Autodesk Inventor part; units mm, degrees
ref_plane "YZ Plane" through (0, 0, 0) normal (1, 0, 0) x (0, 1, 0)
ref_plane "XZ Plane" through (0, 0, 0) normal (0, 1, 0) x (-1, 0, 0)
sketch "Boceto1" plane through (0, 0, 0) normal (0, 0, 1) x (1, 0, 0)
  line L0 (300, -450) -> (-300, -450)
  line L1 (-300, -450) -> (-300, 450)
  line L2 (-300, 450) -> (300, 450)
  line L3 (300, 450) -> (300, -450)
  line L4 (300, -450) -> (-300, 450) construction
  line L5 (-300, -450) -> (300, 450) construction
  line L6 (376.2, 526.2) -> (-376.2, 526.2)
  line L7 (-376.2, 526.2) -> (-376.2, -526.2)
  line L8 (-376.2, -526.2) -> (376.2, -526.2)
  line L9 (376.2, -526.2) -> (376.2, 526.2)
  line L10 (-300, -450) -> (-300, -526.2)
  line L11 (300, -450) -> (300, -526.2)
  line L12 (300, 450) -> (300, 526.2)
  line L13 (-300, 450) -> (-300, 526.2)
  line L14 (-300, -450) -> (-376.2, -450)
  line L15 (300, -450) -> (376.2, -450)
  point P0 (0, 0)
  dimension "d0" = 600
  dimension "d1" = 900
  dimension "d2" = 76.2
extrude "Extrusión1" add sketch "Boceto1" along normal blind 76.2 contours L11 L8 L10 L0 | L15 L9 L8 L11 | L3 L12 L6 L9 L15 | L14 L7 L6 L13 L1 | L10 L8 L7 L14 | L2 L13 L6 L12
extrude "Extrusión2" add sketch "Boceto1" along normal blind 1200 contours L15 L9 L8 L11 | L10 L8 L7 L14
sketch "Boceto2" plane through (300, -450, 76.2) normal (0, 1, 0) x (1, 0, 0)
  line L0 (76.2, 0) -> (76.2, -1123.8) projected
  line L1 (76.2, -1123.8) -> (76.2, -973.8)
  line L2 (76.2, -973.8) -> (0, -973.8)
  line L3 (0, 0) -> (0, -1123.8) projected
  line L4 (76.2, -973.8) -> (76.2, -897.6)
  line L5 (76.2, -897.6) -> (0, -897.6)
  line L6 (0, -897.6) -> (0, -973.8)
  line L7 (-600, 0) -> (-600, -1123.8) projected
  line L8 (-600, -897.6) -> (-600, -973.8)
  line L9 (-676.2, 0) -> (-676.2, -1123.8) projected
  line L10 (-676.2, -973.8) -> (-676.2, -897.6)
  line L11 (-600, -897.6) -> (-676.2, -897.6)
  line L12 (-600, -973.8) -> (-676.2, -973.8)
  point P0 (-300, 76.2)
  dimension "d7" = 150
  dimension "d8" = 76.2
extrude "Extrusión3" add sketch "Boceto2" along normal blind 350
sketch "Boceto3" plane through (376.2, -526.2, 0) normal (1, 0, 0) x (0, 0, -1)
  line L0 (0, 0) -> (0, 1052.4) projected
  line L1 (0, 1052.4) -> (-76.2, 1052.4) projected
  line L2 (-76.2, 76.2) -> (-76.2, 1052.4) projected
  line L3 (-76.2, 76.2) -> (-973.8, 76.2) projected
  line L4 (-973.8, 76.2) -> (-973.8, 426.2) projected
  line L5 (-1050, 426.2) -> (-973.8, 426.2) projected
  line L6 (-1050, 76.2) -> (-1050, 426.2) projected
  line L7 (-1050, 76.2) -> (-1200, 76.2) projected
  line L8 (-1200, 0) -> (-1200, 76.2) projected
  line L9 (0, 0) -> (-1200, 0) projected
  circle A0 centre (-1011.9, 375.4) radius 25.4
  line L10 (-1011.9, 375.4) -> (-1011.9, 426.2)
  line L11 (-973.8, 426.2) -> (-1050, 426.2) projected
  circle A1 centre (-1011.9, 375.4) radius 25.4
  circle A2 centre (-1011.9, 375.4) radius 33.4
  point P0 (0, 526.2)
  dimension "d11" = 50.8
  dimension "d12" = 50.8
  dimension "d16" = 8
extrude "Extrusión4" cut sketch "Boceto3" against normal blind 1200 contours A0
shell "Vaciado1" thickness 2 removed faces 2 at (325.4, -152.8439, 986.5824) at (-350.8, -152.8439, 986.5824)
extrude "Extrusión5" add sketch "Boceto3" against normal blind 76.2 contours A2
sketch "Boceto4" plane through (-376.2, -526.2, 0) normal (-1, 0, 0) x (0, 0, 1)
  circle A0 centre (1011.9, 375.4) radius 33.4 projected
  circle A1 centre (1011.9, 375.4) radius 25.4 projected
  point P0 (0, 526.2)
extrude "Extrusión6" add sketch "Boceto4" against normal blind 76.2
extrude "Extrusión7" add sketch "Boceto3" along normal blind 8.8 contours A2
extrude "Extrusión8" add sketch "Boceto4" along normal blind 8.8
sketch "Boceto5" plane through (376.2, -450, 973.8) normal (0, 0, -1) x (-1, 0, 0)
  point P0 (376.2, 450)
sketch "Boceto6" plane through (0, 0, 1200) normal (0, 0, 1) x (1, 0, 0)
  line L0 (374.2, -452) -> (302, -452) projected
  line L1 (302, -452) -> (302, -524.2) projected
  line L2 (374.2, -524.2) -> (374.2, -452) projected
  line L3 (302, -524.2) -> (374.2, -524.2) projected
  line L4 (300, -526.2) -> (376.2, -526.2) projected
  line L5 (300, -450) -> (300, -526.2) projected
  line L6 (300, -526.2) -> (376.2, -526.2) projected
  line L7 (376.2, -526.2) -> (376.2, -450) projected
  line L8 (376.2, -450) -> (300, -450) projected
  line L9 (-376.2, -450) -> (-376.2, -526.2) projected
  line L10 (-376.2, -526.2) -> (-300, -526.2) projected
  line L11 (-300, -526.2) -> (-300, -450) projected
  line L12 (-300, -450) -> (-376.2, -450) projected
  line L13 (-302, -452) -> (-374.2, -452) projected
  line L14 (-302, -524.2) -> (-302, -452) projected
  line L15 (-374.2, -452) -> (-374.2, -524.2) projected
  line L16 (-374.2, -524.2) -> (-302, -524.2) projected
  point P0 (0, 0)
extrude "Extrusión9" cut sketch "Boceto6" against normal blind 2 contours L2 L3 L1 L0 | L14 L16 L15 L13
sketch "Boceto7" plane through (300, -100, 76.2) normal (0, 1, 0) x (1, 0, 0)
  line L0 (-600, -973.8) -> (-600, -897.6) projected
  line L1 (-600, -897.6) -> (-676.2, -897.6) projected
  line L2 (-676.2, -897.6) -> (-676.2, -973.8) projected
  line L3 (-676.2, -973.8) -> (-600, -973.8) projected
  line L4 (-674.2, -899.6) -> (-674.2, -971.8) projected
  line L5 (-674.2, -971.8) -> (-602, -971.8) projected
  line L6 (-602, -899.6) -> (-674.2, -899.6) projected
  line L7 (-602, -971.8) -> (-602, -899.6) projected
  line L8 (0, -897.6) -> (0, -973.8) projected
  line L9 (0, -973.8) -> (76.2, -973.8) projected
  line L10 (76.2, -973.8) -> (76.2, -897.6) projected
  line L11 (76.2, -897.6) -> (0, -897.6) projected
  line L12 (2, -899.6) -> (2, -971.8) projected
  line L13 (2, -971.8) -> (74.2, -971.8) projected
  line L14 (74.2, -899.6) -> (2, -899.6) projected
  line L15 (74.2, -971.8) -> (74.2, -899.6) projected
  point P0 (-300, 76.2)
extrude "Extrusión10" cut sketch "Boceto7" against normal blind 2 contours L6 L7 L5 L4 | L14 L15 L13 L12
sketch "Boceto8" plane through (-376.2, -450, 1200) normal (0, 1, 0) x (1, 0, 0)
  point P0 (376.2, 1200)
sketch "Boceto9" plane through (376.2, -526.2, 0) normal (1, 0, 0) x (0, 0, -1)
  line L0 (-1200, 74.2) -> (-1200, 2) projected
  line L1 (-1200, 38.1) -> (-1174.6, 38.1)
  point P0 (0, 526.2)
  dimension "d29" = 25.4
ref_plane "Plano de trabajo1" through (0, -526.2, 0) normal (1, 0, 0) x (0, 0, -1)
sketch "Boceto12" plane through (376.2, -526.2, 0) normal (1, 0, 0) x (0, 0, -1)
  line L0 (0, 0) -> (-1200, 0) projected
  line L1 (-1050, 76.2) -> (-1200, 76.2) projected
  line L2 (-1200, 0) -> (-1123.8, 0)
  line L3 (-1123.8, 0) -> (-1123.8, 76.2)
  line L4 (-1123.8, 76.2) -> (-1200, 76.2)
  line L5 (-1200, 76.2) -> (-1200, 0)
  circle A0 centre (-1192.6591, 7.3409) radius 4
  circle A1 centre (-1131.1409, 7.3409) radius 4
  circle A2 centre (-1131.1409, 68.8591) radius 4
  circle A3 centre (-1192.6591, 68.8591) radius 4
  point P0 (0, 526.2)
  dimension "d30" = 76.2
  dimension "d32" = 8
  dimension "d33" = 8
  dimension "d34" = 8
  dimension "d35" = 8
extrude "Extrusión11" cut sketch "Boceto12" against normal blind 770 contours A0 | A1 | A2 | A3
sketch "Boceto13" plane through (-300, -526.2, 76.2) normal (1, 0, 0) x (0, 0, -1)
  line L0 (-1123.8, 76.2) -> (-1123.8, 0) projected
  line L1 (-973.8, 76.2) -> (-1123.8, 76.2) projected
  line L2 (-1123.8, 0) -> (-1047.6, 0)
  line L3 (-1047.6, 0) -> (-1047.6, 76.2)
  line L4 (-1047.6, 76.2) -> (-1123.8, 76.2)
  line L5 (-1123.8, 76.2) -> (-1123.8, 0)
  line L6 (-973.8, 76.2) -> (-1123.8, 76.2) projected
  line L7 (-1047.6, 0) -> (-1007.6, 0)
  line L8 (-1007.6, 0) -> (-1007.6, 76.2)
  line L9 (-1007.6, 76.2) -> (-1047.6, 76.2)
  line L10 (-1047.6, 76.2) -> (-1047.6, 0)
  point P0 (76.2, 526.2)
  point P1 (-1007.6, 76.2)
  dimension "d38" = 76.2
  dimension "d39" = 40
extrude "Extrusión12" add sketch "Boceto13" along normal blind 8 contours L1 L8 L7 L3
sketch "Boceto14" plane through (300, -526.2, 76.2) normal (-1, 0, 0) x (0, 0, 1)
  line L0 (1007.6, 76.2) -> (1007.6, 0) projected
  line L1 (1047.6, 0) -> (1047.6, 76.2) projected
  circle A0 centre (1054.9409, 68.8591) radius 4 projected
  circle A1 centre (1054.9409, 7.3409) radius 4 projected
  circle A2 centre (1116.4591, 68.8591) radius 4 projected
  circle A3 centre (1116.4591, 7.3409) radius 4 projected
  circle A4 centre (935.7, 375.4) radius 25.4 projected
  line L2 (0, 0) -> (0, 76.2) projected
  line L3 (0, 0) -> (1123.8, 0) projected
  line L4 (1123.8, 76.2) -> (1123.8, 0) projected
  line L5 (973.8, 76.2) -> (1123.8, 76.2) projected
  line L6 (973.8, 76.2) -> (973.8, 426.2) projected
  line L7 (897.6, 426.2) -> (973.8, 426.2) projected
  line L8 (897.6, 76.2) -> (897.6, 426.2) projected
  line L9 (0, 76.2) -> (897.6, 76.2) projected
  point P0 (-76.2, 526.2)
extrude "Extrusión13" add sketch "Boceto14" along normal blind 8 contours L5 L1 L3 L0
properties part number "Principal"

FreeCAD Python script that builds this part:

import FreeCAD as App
import Part
import Sketcher
Q = App.Units.Quantity


def faces_at(feature, points):
    """Names of the faces that lie closest to the given points."""
    faces = feature.Shape.Faces
    near = lambda p: min(range(len(faces)), key=lambda i: faces[i].distToShape(Part.Vertex(*p))[0])
    return sorted({f"Face{near(p) + 1}" for p in points})


def add_polygon(sketch, points):
    """Adds a closed chain of lines whose ends are joined by coincident constraints."""
    first, n = sketch.GeometryCount, len(points)
    for a, b in zip(points, points[1:] + points[:1]):
        sketch.addGeometry(Part.LineSegment(App.Vector(*a, 0), App.Vector(*b, 0)), False)
    for i in range(n):
        sketch.addConstraint(Sketcher.Constraint("Coincident", first + i, 2, first + (i + 1) % n, 1))

doc = App.newDocument("Part")
body = doc.addObject("PartDesign::Body", "Body")

# Sketch on XY plane
sketch1 = doc.addObject("Sketcher::SketchObject", "Sketch")
body.addObject(sketch1)
sketch1.AttachmentSupport = (doc.XY_Plane, [""])
sketch1.MapMode = "FlatFace"
add_polygon(sketch1, [(376, -526), (376, 526), (-376, 526), (-376, -526)])  # lines 0-3
add_polygon(sketch1, [(300, -450), (-300, -450), (-300, 450), (300, 450)])  # lines 4-7
sketch1.addConstraint(Sketcher.Constraint("Vertical", 0))
sketch1.addConstraint(Sketcher.Constraint("Horizontal", 1))
sketch1.addConstraint(Sketcher.Constraint("Vertical", 2))
sketch1.addConstraint(Sketcher.Constraint("Horizontal", 3))
sketch1.addConstraint(Sketcher.Constraint("Horizontal", 4))
sketch1.addConstraint(Sketcher.Constraint("Vertical", 5))
sketch1.addConstraint(Sketcher.Constraint("Horizontal", 6))
sketch1.addConstraint(Sketcher.Constraint("Vertical", 7))
sketch1.addConstraint(Sketcher.Constraint("Symmetric", 0, 2, 2, 2, -1, 1))
sketch1.addConstraint(Sketcher.Constraint("Symmetric", 4, 2, 6, 2, -1, 1))
sketch1.addConstraint(Sketcher.Constraint("DistanceX", 4, 2, 4, 1, Q("600 mm")))
sketch1.addConstraint(Sketcher.Constraint("DistanceY", 5, 1, 5, 2, Q("900 mm")))
sketch1.addConstraint(Sketcher.Constraint("DistanceX", 2, 2, 4, 2, Q("76.2 mm")))
sketch1.addConstraint(Sketcher.Constraint("DistanceY", 2, 2, 4, 2, Q("76.2 mm")))
pad1 = doc.addObject("PartDesign::Pad", "Pad")
body.addObject(pad1)
pad1.Profile = sketch1
pad1.Length = 76.2

# Sketch on XY plane
sketch2 = doc.addObject("Sketcher::SketchObject", "Sketch001")
body.addObject(sketch2)
sketch2.AttachmentSupport = (doc.XY_Plane, [""])
sketch2.MapMode = "FlatFace"
add_polygon(sketch2, [(376, -450), (300, -450), (300, -526), (376, -526)])  # lines 0-3
add_polygon(sketch2, [(-300, -526), (-300, -450), (-376, -450), (-376, -526)])  # lines 4-7
sketch2.addConstraint(Sketcher.Constraint("Horizontal", 0))
sketch2.addConstraint(Sketcher.Constraint("Vertical", 1))
sketch2.addConstraint(Sketcher.Constraint("Horizontal", 2))
sketch2.addConstraint(Sketcher.Constraint("Vertical", 3))
sketch2.addConstraint(Sketcher.Constraint("Vertical", 4))
sketch2.addConstraint(Sketcher.Constraint("Horizontal", 5))
sketch2.addConstraint(Sketcher.Constraint("Vertical", 6))
sketch2.addConstraint(Sketcher.Constraint("Horizontal", 7))
sketch2.addConstraint(Sketcher.Constraint("Symmetric", 0, 2, 4, 2, -2))
sketch2.addConstraint(Sketcher.Constraint("Symmetric", 2, 2, 6, 2, -2))
sketch2.addConstraint(Sketcher.Constraint("Equal", 7, 1))
sketch2.addConstraint(Sketcher.Constraint("DistanceX", 0, 2, 0, 1, Q("76.2 mm")))
sketch2.addConstraint(Sketcher.Constraint("DistanceX", 4, 2, 0, 2, Q("600 mm")))
sketch2.addConstraint(Sketcher.Constraint("DistanceY", 0, 2, -1, 1, Q("450 mm")))
pad2 = doc.addObject("PartDesign::Pad", "Pad001")
body.addObject(pad2)
pad2.Profile = sketch2
pad2.Length = 1200

# Sketch on XZ plane
sketch3 = doc.addObject("Sketcher::SketchObject", "Sketch002")
body.addObject(sketch3)
sketch3.AttachmentSupport = (doc.XZ_Plane, [""])
sketch3.MapMode = "FlatFace"
sketch3.AttachmentOffset = App.Placement(App.Vector(0, 0, 450), App.Rotation())
add_polygon(sketch3, [(376, 1050), (376, 974), (300, 974), (300, 1050)])  # lines 0-3
add_polygon(sketch3, [(-300, 1050), (-300, 974), (-376, 974), (-376, 1050)])  # lines 4-7
sketch3.addConstraint(Sketcher.Constraint("Vertical", 0))
sketch3.addConstraint(Sketcher.Constraint("Horizontal", 1))
sketch3.addConstraint(Sketcher.Constraint("Vertical", 2))
sketch3.addConstraint(Sketcher.Constraint("Horizontal", 3))
sketch3.addConstraint(Sketcher.Constraint("Vertical", 4))
sketch3.addConstraint(Sketcher.Constraint("Horizontal", 5))
sketch3.addConstraint(Sketcher.Constraint("Vertical", 6))
sketch3.addConstraint(Sketcher.Constraint("Horizontal", 7))
sketch3.addConstraint(Sketcher.Constraint("Symmetric", 1, 2, 4, 2, -2))
sketch3.addConstraint(Sketcher.Constraint("Symmetric", 3, 2, 6, 2, -2))
sketch3.addConstraint(Sketcher.Constraint("Equal", 7, 0))
sketch3.addConstraint(Sketcher.Constraint("DistanceX", 1, 2, 1, 1, Q("76.2 mm")))
sketch3.addConstraint(Sketcher.Constraint("DistanceX", -1, 1, 1, 2, Q("300 mm")))
sketch3.addConstraint(Sketcher.Constraint("DistanceY", -1, 1, 2, 2, Q("1050 mm")))
pad3 = doc.addObject("PartDesign::Pad", "Pad002")
body.addObject(pad3)
pad3.Profile = sketch3
pad3.Length = 350
pad3.Reversed = True

# Sketch on YZ plane
sketch4 = doc.addObject("Sketcher::SketchObject", "Sketch003")
body.addObject(sketch4)
sketch4.AttachmentSupport = (doc.YZ_Plane, [""])
sketch4.MapMode = "FlatFace"
sketch4.AttachmentOffset = App.Placement(App.Vector(0, 0, 376.2), App.Rotation())
sketch4.addGeometry(Part.Circle(App.Vector(-151, 1012, 0), App.Vector(0, 0, 1), 25), False)
sketch4.addConstraint(Sketcher.Constraint("Diameter", 0, Q("50.8 mm")))
sketch4.addConstraint(Sketcher.Constraint("DistanceX", 0, 3, -1, 1, Q("150.8 mm")))
sketch4.addConstraint(Sketcher.Constraint("DistanceY", -1, 1, 0, 3, Q("1011.9 mm")))
pocket1 = doc.addObject("PartDesign::Pocket", "Pocket")
body.addObject(pocket1)
pocket1.Profile = sketch4
pocket1.Length = 1200
doc.recompute()

thickness = doc.addObject("PartDesign::Thickness", "Thickness")
body.addObject(thickness)
thickness.Base = (pocket1, faces_at(pocket1, [(325.4, -152.844, 986.582), (-350.8, -152.844, 986.582)]))
thickness.Value = 2
thickness.Reversed = True
thickness.Join = "Intersection"

# Sketch on YZ plane
sketch5 = doc.addObject("Sketcher::SketchObject", "Sketch004")
body.addObject(sketch5)
sketch5.AttachmentSupport = (doc.YZ_Plane, [""])
sketch5.MapMode = "FlatFace"
sketch5.AttachmentOffset = App.Placement(App.Vector(0, 0, 376.2), App.Rotation())
sketch5.addGeometry(Part.Circle(App.Vector(-151, 1012, 0), App.Vector(0, 0, 1), 33), False)
sketch5.addGeometry(Part.Circle(App.Vector(-151, 1012, 0), App.Vector(0, 0, 1), 25), False)
sketch5.addConstraint(Sketcher.Constraint("Coincident", 1, 3, 0, 3))
sketch5.addConstraint(Sketcher.Constraint("Diameter", 1, Q("50.8 mm")))
sketch5.addConstraint(Sketcher.Constraint("Diameter", 0, Q("66.8 mm")))
sketch5.addConstraint(Sketcher.Constraint("DistanceX", 0, 3, -1, 1, Q("150.8 mm")))
sketch5.addConstraint(Sketcher.Constraint("DistanceY", -1, 1, 0, 3, Q("1011.9 mm")))
pad4 = doc.addObject("PartDesign::Pad", "Pad003")
body.addObject(pad4)
pad4.Profile = sketch5
pad4.Length = 76.2
pad4.Reversed = True

# Sketch on YZ plane
sketch6 = doc.addObject("Sketcher::SketchObject", "Sketch005")
body.addObject(sketch6)
sketch6.AttachmentSupport = (doc.YZ_Plane, [""])
sketch6.MapMode = "FlatFace"
sketch6.AttachmentOffset = App.Placement(App.Vector(0, 0, -376.2), App.Rotation())
sketch6.addGeometry(Part.Circle(App.Vector(-151, 1012, 0), App.Vector(0, 0, 1), 33), False)
sketch6.addGeometry(Part.Circle(App.Vector(-151, 1012, 0), App.Vector(0, 0, 1), 25), False)
sketch6.addConstraint(Sketcher.Constraint("Coincident", 1, 3, 0, 3))
sketch6.addConstraint(Sketcher.Constraint("Diameter", 0, Q("66.8 mm")))
sketch6.addConstraint(Sketcher.Constraint("Diameter", 1, Q("50.8 mm")))
sketch6.addConstraint(Sketcher.Constraint("DistanceX", 0, 3, -1, 1, Q("150.8 mm")))
sketch6.addConstraint(Sketcher.Constraint("DistanceY", -1, 1, 0, 3, Q("1011.9 mm")))
pad5 = doc.addObject("PartDesign::Pad", "Pad004")
body.addObject(pad5)
pad5.Profile = sketch6
pad5.Length = 76.2

# Sketch on YZ plane
sketch7 = doc.addObject("Sketcher::SketchObject", "Sketch006")
body.addObject(sketch7)
sketch7.AttachmentSupport = (doc.YZ_Plane, [""])
sketch7.MapMode = "FlatFace"
sketch7.AttachmentOffset = App.Placement(App.Vector(0, 0, 376.2), App.Rotation())
sketch7.addGeometry(Part.Circle(App.Vector(-151, 1012, 0), App.Vector(0, 0, 1), 33), False)
sketch7.addGeometry(Part.Circle(App.Vector(-151, 1012, 0), App.Vector(0, 0, 1), 25), False)
sketch7.addConstraint(Sketcher.Constraint("Coincident", 1, 3, 0, 3))
sketch7.addConstraint(Sketcher.Constraint("Diameter", 1, Q("50.8 mm")))
sketch7.addConstraint(Sketcher.Constraint("Diameter", 0, Q("66.8 mm")))
sketch7.addConstraint(Sketcher.Constraint("DistanceX", 0, 3, -1, 1, Q("150.8 mm")))
sketch7.addConstraint(Sketcher.Constraint("DistanceY", -1, 1, 0, 3, Q("1011.9 mm")))
pad6 = doc.addObject("PartDesign::Pad", "Pad005")
body.addObject(pad6)
pad6.Profile = sketch7
pad6.Length = 8.8

# Sketch on YZ plane
sketch8 = doc.addObject("Sketcher::SketchObject", "Sketch007")
body.addObject(sketch8)
sketch8.AttachmentSupport = (doc.YZ_Plane, [""])
sketch8.MapMode = "FlatFace"
sketch8.AttachmentOffset = App.Placement(App.Vector(0, 0, -376.2), App.Rotation())
sketch8.addGeometry(Part.Circle(App.Vector(-151, 1012, 0), App.Vector(0, 0, 1), 33), False)
sketch8.addGeometry(Part.Circle(App.Vector(-151, 1012, 0), App.Vector(0, 0, 1), 25), False)
sketch8.addConstraint(Sketcher.Constraint("Coincident", 1, 3, 0, 3))
sketch8.addConstraint(Sketcher.Constraint("Diameter", 0, Q("66.8 mm")))
sketch8.addConstraint(Sketcher.Constraint("Diameter", 1, Q("50.8 mm")))
sketch8.addConstraint(Sketcher.Constraint("DistanceX", 0, 3, -1, 1, Q("150.8 mm")))
sketch8.addConstraint(Sketcher.Constraint("DistanceY", -1, 1, 0, 3, Q("1011.9 mm")))
pad7 = doc.addObject("PartDesign::Pad", "Pad006")
body.addObject(pad7)
pad7.Profile = sketch8
pad7.Length = 8.8
pad7.Reversed = True

# Sketch on XY plane
sketch9 = doc.addObject("Sketcher::SketchObject", "Sketch008")
body.addObject(sketch9)
sketch9.AttachmentSupport = (doc.XY_Plane, [""])
sketch9.MapMode = "FlatFace"
sketch9.AttachmentOffset = App.Placement(App.Vector(0, 0, 1200), App.Rotation())
add_polygon(sketch9, [(374, -524), (374, -452), (302, -452), (302, -524)])  # lines 0-3
add_polygon(sketch9, [(-302, -524), (-302, -452), (-374, -452), (-374, -524)])  # lines 4-7
sketch9.addConstraint(Sketcher.Constraint("Vertical", 0))
sketch9.addConstraint(Sketcher.Constraint("Horizontal", 1))
sketch9.addConstraint(Sketcher.Constraint("Vertical", 2))
sketch9.addConstraint(Sketcher.Constraint("Horizontal", 3))
sketch9.addConstraint(Sketcher.Constraint("Vertical", 4))
sketch9.addConstraint(Sketcher.Constraint("Horizontal", 5))
sketch9.addConstraint(Sketcher.Constraint("Vertical", 6))
sketch9.addConstraint(Sketcher.Constraint("Horizontal", 7))
sketch9.addConstraint(Sketcher.Constraint("Symmetric", 1, 2, 4, 2, -2))
sketch9.addConstraint(Sketcher.Constraint("Symmetric", 3, 2, 6, 2, -2))
sketch9.addConstraint(Sketcher.Constraint("Equal", 7, 0))
sketch9.addConstraint(Sketcher.Constraint("DistanceX", 1, 2, 1, 1, Q("72.2 mm")))
sketch9.addConstraint(Sketcher.Constraint("DistanceY", 0, 2, -1, 1, Q("452 mm")))
sketch9.addConstraint(Sketcher.Constraint("DistanceX", -1, 1, 1, 2, Q("302 mm")))
pocket2 = doc.addObject("PartDesign::Pocket", "Pocket001")
body.addObject(pocket2)
pocket2.Profile = sketch9
pocket2.Length = 2

# Sketch on XZ plane
sketch10 = doc.addObject("Sketcher::SketchObject", "Sketch009")
body.addObject(sketch10)
sketch10.AttachmentSupport = (doc.XZ_Plane, [""])
sketch10.MapMode = "FlatFace"
sketch10.AttachmentOffset = App.Placement(App.Vector(0, 0, 100), App.Rotation())
add_polygon(sketch10, [(-302, 976), (-374, 976), (-374, 1048), (-302, 1048)])  # lines 0-3
add_polygon(sketch10, [(374, 976), (302, 976), (302, 1048), (374, 1048)])  # lines 4-7
sketch10.addConstraint(Sketcher.Constraint("Horizontal", 0))
sketch10.addConstraint(Sketcher.Constraint("Vertical", 1))
sketch10.addConstraint(Sketcher.Constraint("Horizontal", 2))
sketch10.addConstraint(Sketcher.Constraint("Vertical", 3))
sketch10.addConstraint(Sketcher.Constraint("Horizontal", 4))
sketch10.addConstraint(Sketcher.Constraint("Vertical", 5))
sketch10.addConstraint(Sketcher.Constraint("Horizontal", 6))
sketch10.addConstraint(Sketcher.Constraint("Vertical", 7))
sketch10.addConstraint(Sketcher.Constraint("Symmetric", 3, 2, 4, 2, -2))
sketch10.addConstraint(Sketcher.Constraint("Symmetric", 1, 2, 6, 2, -2))
sketch10.addConstraint(Sketcher.Constraint("Equal", 6, 1))
sketch10.addConstraint(Sketcher.Constraint("DistanceX", 0, 2, 0, 1, Q("72.2 mm")))
sketch10.addConstraint(Sketcher.Constraint("DistanceY", -1, 1, 1, 2, Q("1048 mm")))
sketch10.addConstraint(Sketcher.Constraint("DistanceX", 2, 2, -1, 1, Q("302 mm")))
pocket3 = doc.addObject("PartDesign::Pocket", "Pocket002")
body.addObject(pocket3)
pocket3.Profile = sketch10
pocket3.Length = 2
pocket3.Reversed = True

# Sketch on YZ plane
sketch11 = doc.addObject("Sketcher::SketchObject", "Sketch010")
body.addObject(sketch11)
sketch11.AttachmentSupport = (doc.YZ_Plane, [""])
sketch11.MapMode = "FlatFace"
sketch11.AttachmentOffset = App.Placement(App.Vector(0, 0, 376.2), App.Rotation())
sketch11.addGeometry(Part.Circle(App.Vector(-518.9, 1192.7, 0), App.Vector(0, 0, 1), 4), False)
sketch11.addGeometry(Part.Circle(App.Vector(-518.9, 1131.1, 0), App.Vector(0, 0, 1), 4), False)
sketch11.addGeometry(Part.Circle(App.Vector(-457.3, 1131.1, 0), App.Vector(0, 0, 1), 4), False)
sketch11.addGeometry(Part.Circle(App.Vector(-457.3, 1192.7, 0), App.Vector(0, 0, 1), 4), False)
sketch11.addConstraint(Sketcher.Constraint("Equal", 0, 1))
sketch11.addConstraint(Sketcher.Constraint("Equal", 1, 2))
sketch11.addConstraint(Sketcher.Constraint("Equal", 2, 3))
sketch11.addConstraint(Sketcher.Constraint("Horizontal", 1, 3, 2, 3))
sketch11.addConstraint(Sketcher.Constraint("Horizontal", 0, 3, 3, 3))
sketch11.addConstraint(Sketcher.Constraint("Vertical", 0, 3, 1, 3))
sketch11.addConstraint(Sketcher.Constraint("Vertical", 2, 3, 3, 3))
sketch11.addConstraint(Sketcher.Constraint("Diameter", 0, Q("8 mm")))
sketch11.addConstraint(Sketcher.Constraint("DistanceX", 0, 3, -1, 1, Q("518.859 mm")))
sketch11.addConstraint(Sketcher.Constraint("DistanceY", -1, 1, 0, 3, Q("1192.659 mm")))
sketch11.addConstraint(Sketcher.Constraint("DistanceY", -1, 1, 1, 3, Q("1131.141 mm")))
sketch11.addConstraint(Sketcher.Constraint("DistanceX", 2, 3, -1, 1, Q("457.341 mm")))
pocket4 = doc.addObject("PartDesign::Pocket", "Pocket003")
body.addObject(pocket4)
pocket4.Profile = sketch11
pocket4.Length = 770

# Sketch on YZ plane
sketch12 = doc.addObject("Sketcher::SketchObject", "Sketch011")
body.addObject(sketch12)
sketch12.AttachmentSupport = (doc.YZ_Plane, [""])
sketch12.MapMode = "FlatFace"
sketch12.AttachmentOffset = App.Placement(App.Vector(0, 0, -300), App.Rotation())
add_polygon(sketch12, [(-450, 1084), (-450, 1124), (-526, 1124), (-526, 1084)])  # lines 0-3
sketch12.addConstraint(Sketcher.Constraint("Vertical", 0))
sketch12.addConstraint(Sketcher.Constraint("Horizontal", 1))
sketch12.addConstraint(Sketcher.Constraint("Vertical", 2))
sketch12.addConstraint(Sketcher.Constraint("Horizontal", 3))
sketch12.addConstraint(Sketcher.Constraint("DistanceY", 0, 1, 0, 2, Q("40 mm")))
sketch12.addConstraint(Sketcher.Constraint("DistanceX", 1, 2, 1, 1, Q("76.2 mm")))
sketch12.addConstraint(Sketcher.Constraint("DistanceX", 0, 2, -1, 1, Q("450 mm")))
sketch12.addConstraint(Sketcher.Constraint("DistanceY", -1, 1, 0, 2, Q("1123.8 mm")))
pad8 = doc.addObject("PartDesign::Pad", "Pad007")
body.addObject(pad8)
pad8.Profile = sketch12
pad8.Length = 8

# Sketch on YZ plane
sketch13 = doc.addObject("Sketcher::SketchObject", "Sketch012")
body.addObject(sketch13)
sketch13.AttachmentSupport = (doc.YZ_Plane, [""])
sketch13.MapMode = "FlatFace"
sketch13.AttachmentOffset = App.Placement(App.Vector(0, 0, 300), App.Rotation())
add_polygon(sketch13, [(-450, 1124), (-450, 1084), (-526, 1084), (-526, 1124)])  # lines 0-3
sketch13.addConstraint(Sketcher.Constraint("Vertical", 0))
sketch13.addConstraint(Sketcher.Constraint("Horizontal", 1))
sketch13.addConstraint(Sketcher.Constraint("Vertical", 2))
sketch13.addConstraint(Sketcher.Constraint("Horizontal", 3))
sketch13.addConstraint(Sketcher.Constraint("DistanceY", 0, 2, 0, 1, Q("40 mm")))
sketch13.addConstraint(Sketcher.Constraint("DistanceX", 1, 2, 1, 1, Q("76.2 mm")))
sketch13.addConstraint(Sketcher.Constraint("DistanceX", 0, 2, -1, 1, Q("450 mm")))
sketch13.addConstraint(Sketcher.Constraint("DistanceY", -1, 1, 0, 2, Q("1083.8 mm")))
pad9 = doc.addObject("PartDesign::Pad", "Pad008")
body.addObject(pad9)
pad9.Profile = sketch13
pad9.Length = 8
pad9.Reversed = True

doc.recompute()
